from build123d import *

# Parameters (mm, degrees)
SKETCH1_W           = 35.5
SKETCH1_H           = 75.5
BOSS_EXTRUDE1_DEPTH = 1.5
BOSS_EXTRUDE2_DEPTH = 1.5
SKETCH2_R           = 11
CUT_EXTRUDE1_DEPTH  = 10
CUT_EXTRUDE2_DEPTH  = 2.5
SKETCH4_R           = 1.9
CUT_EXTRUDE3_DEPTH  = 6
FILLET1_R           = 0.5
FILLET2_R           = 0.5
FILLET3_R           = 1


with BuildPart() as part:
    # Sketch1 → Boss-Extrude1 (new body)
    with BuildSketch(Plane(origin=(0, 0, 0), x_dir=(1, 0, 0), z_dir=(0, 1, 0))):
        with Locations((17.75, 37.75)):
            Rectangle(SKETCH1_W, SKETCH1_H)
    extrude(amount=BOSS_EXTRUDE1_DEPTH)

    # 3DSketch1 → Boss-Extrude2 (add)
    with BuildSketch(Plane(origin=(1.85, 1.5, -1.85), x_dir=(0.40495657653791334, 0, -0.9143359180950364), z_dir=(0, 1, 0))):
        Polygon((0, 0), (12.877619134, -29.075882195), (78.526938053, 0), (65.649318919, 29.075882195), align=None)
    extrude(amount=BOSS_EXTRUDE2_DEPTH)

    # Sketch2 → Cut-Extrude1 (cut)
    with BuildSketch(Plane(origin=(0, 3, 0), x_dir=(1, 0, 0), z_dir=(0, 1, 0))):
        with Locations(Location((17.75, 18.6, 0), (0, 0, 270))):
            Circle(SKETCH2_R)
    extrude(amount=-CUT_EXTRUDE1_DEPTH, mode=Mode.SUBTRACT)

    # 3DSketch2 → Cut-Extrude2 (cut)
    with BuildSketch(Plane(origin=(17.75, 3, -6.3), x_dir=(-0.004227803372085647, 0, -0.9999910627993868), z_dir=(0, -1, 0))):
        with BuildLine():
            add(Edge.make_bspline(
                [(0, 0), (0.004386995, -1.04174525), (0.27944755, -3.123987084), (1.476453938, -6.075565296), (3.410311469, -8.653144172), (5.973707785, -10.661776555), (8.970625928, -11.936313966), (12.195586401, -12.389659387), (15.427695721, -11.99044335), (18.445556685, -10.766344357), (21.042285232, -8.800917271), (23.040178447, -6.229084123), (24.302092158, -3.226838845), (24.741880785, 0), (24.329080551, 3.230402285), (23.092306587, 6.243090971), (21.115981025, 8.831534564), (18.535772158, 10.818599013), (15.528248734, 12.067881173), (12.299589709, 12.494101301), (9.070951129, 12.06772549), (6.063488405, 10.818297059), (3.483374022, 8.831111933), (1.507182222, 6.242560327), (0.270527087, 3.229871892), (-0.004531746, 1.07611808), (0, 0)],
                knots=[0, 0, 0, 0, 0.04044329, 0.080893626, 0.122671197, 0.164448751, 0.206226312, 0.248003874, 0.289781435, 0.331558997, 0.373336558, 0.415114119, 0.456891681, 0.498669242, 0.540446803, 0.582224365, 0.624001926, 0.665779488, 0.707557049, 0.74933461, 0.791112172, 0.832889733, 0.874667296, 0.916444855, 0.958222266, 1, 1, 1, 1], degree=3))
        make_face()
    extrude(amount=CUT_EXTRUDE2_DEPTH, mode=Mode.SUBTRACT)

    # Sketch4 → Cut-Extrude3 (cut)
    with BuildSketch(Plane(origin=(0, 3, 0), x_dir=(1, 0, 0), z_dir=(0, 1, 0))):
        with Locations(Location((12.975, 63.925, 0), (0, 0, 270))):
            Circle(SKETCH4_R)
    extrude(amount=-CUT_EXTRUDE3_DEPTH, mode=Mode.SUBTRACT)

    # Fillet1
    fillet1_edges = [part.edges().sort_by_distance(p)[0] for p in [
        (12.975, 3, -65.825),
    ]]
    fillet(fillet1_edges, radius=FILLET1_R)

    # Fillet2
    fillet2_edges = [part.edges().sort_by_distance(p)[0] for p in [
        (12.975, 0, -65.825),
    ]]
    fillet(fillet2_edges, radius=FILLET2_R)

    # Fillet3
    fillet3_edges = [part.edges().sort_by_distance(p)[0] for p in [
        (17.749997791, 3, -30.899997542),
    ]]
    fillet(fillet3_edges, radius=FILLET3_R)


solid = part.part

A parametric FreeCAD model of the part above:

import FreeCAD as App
import Part
import Sketcher
Q = App.Units.Quantity


def edges_at(feature, points):
    """Names of the edges that pass closest to the given points."""
    edges = feature.Shape.Edges
    near = lambda p: min(range(len(edges)), key=lambda i: edges[i].distToShape(Part.Vertex(*p))[0])
    return sorted({f"Edge{near(p) + 1}" for p in points})


def add_polygon(sketch, points):
    """Adds a closed chain of lines whose ends are joined by coincident constraints."""
    first, n = sketch.GeometryCount, len(points)
    for a, b in zip(points, points[1:] + points[:1]):
        sketch.addGeometry(Part.LineSegment(App.Vector(*a, 0), App.Vector(*b, 0)), False)
    for i in range(n):
        sketch.addConstraint(Sketcher.Constraint("Coincident", first + i, 2, first + (i + 1) % n, 1))

doc = App.newDocument("Part")
params = doc.addObject("Spreadsheet::Sheet", "Params")
for row, (alias, value) in enumerate([
    ("sketch1_width", "35.5 mm"),
    ("sketch1_height", "75.5 mm"),
    ("pad1_length", "1.5 mm"),
    ("sketch2_width", "31.8 mm"),
    ("sketch2_height", "71.8 mm"),
    ("pad2_length", "1.5 mm"),
    ("sketch3_diameter", "22 mm"),
    ("pocket1_length", "10 mm"),
    ("pocket2_length", "2.5 mm"),
    ("sketch5_diameter", "3.8 mm"),
    ("pocket3_length", "6 mm"),
    ("fillet_radius", "0.5 mm"),
    ("fillet2_radius", "0.5 mm"),
    ("fillet3_radius", "1 mm"),
], start=1):
    params.set(f"A{row}", alias)
    params.set(f"B{row}", "=" + value)
    params.setAlias(f"B{row}", alias)

body = doc.addObject("PartDesign::Body", "Body")

# Sketch on XZ plane
sketch1 = body.newObject("Sketcher::SketchObject", "Sketch")
sketch1.AttachmentSupport = (doc.getObject("XZ_Plane"), [""])
sketch1.MapMode = "FlatFace"
add_polygon(sketch1, [(0, -75.5), (0, 0), (35.5, 0), (35.5, -75.5)])  # lines 0-3
sketch1.addConstraint([
    Sketcher.Constraint("Vertical", 0),
    Sketcher.Constraint("Horizontal", 1),
    Sketcher.Constraint("Vertical", 2),
    Sketcher.Constraint("Horizontal", 3),
    Sketcher.Constraint("Coincident", 0, 2, -1, 1),
    Sketcher.Constraint("DistanceX", 1, 1, 1, 2, Q("35.5 mm")),
    Sketcher.Constraint("DistanceY", 0, 1, 0, 2, Q("75.5 mm")),
])
sketch1.setExpression("Constraints[9]", "Params.sketch1_width")
sketch1.setExpression("Constraints[10]", "Params.sketch1_height")
pad1 = body.newObject("PartDesign::Pad", "Pad")
pad1.Profile = sketch1
pad1.setExpression("Length", "Params.pad1_length")
pad1.Reversed = True

# Sketch on XZ plane
sketch2 = body.newObject("Sketcher::SketchObject", "Sketch001")
sketch2.AttachmentSupport = (doc.getObject("XZ_Plane"), [""])
sketch2.MapMode = "FlatFace"
sketch2.AttachmentOffset = App.Placement(App.Vector(0, 0, -1.5), App.Rotation())
add_polygon(sketch2, [(1.85, -1.85), (33.65, -1.85), (33.65, -73.65), (1.85, -73.65)])  # lines 0-3
sketch2.addConstraint([
    Sketcher.Constraint("Horizontal", 0),
    Sketcher.Constraint("Vertical", 1),
    Sketcher.Constraint("Horizontal", 2),
    Sketcher.Constraint("Vertical", 3),
    Sketcher.Constraint("DistanceX", 0, 1, 0, 2, Q("31.8 mm")),
    Sketcher.Constraint("DistanceY", 1, 2, 1, 1, Q("71.8 mm")),
    Sketcher.Constraint("DistanceX", -1, 1, 0, 2, Q("33.65 mm")),
    Sketcher.Constraint("DistanceY", 0, 2, -1, 1, Q("1.85 mm")),
])
sketch2.setExpression("Constraints[8]", "Params.sketch2_width")
sketch2.setExpression("Constraints[9]", "Params.sketch2_height")
pad2 = body.newObject("PartDesign::Pad", "Pad001")
pad2.Profile = sketch2
pad2.setExpression("Length", "Params.pad2_length")
pad2.Reversed = True

# Sketch on XZ plane
sketch3 = body.newObject("Sketcher::SketchObject", "Sketch002")
sketch3.AttachmentSupport = (doc.getObject("XZ_Plane"), [""])
sketch3.MapMode = "FlatFace"
sketch3.AttachmentOffset = App.Placement(App.Vector(0, 0, -3), App.Rotation())
sketch3.addGeometry(Part.Circle(App.Vector(17.75, -18.6, 0), App.Vector(0, 0, 1), 11), False)
sketch3.addConstraint([
    Sketcher.Constraint("Diameter", 0, Q("22 mm")),
    Sketcher.Constraint("DistanceY", 0, 3, -1, 1, Q("18.6 mm")),
    Sketcher.Constraint("DistanceX", -1, 1, 0, 3, Q("17.75 mm")),
])
sketch3.setExpression("Constraints[0]", "Params.sketch3_diameter")
pocket1 = body.newObject("PartDesign::Pocket", "Pocket")
pocket1.Profile = sketch3
pocket1.setExpression("Length", "Params.pocket1_length")
pocket1.Reversed = True

# Sketch on XZ plane
sketch4 = body.newObject("Sketcher::SketchObject", "Sketch003")
sketch4.AttachmentSupport = (doc.getObject("XZ_Plane"), [""])
sketch4.MapMode = "FlatFace"
sketch4.AttachmentOffset = App.Placement(App.Vector(0, 0, -3), App.Rotation())
sketch4.addGeometry(Part.BSplineCurve([App.Vector(17.75, -6.3, 0), App.Vector(16.708246, -6.299983, 0), App.Vector(14.624859, -6.566237, 0), App.Vector(11.668247, -7.750754, 0), App.Vector(9.082515, -9.673697, 0), App.Vector(7.063063, -12.228579, 0), App.Vector(5.775867, -15.220081, 0), App.Vector(5.308891, -18.443096, 0), App.Vector(5.694439, -21.676865, 0), App.Vector(6.905768, -24.699874, 0), App.Vector(8.860199, -27.304889, 0), App.Vector(11.423562, -29.313637, 0), App.Vector(14.420446, -30.588233, 0), App.Vector(17.645396, -31.04166, 0), App.Vector(20.877515, -30.642521, 0), App.Vector(23.895405, -29.418495, 0), App.Vector(26.492181, -27.45313, 0), App.Vector(28.490137, -24.881345, 0), App.Vector(29.752123, -21.879131, 0), App.Vector(30.191989, -18.652302, 0), App.Vector(29.779267, -15.42189, 0), App.Vector(28.542565, -12.409172, 0), App.Vector(26.566306, -9.820679, 0), App.Vector(23.986132, -7.833561, 0), App.Vector(20.978699, -6.58418, 0), App.Vector(18.826128, -6.300018, 0), App.Vector(17.75, -6.3, 0)], [4, 1, 1, 1, 1, 1, 1, 1, 1, 1, 1, 1, 1, 1, 1, 1, 1, 1, 1, 1, 1, 1, 1, 1, 4], [0, 0.04044329, 0.080893626, 0.122671197, 0.164448751, 0.206226312, 0.248003874, 0.289781435, 0.331558997, 0.373336558, 0.415114119, 0.456891681, 0.498669242, 0.540446803, 0.582224365, 0.624001926, 0.665779488, 0.707557049, 0.74933461, 0.791112172, 0.832889733, 0.874667296, 0.916444855, 0.958222266, 1], False, 3, [1, 1, 1, 1, 1, 1, 1, 1, 1, 1, 1, 1, 1, 1, 1, 1, 1, 1, 1, 1, 1, 1, 1, 1, 1, 1, 1], False), False)
sketch4.addConstraint(Sketcher.Constraint("Block", 0))
pocket2 = body.newObject("PartDesign::Pocket", "Pocket001")
pocket2.Profile = sketch4
pocket2.setExpression("Length", "Params.pocket2_length")
pocket2.Reversed = True

# Sketch on XZ plane
sketch5 = body.newObject("Sketcher::SketchObject", "Sketch004")
sketch5.AttachmentSupport = (doc.getObject("XZ_Plane"), [""])
sketch5.MapMode = "FlatFace"
sketch5.AttachmentOffset = App.Placement(App.Vector(0, 0, -3), App.Rotation())
sketch5.addGeometry(Part.Circle(App.Vector(12.975, -63.925, 0), App.Vector(0, 0, 1), 1.9), False)
sketch5.addConstraint([
    Sketcher.Constraint("Diameter", 0, Q("3.8 mm")),
    Sketcher.Constraint("DistanceX", -1, 1, 0, 3, Q("12.975 mm")),
    Sketcher.Constraint("DistanceY", 0, 3, -1, 1, Q("63.925 mm")),
])
sketch5.setExpression("Constraints[0]", "Params.sketch5_diameter")
pocket3 = body.newObject("PartDesign::Pocket", "Pocket002")
pocket3.Profile = sketch5
pocket3.setExpression("Length", "Params.pocket3_length")
pocket3.Reversed = True
doc.recompute()

fillet = body.newObject("PartDesign::Fillet", "Fillet")
fillet.Base = (pocket3, edges_at(pocket3, [(12.975, 3, -65.825)]))
fillet.setExpression("Radius", "Params.fillet_radius")
doc.recompute()

fillet2 = body.newObject("PartDesign::Fillet", "Fillet001")
fillet2.Base = (fillet, edges_at(fillet, [(12.975, 0, -65.825)]))
fillet2.setExpression("Radius", "Params.fillet2_radius")
doc.recompute()

fillet3 = body.newObject("PartDesign::Fillet", "Fillet002")
fillet3.Base = (fillet2, edges_at(fillet2, [(17.75, 3, -30.9)]))
fillet3.setExpression("Radius", "Params.fillet3_radius")

doc.recompute()
